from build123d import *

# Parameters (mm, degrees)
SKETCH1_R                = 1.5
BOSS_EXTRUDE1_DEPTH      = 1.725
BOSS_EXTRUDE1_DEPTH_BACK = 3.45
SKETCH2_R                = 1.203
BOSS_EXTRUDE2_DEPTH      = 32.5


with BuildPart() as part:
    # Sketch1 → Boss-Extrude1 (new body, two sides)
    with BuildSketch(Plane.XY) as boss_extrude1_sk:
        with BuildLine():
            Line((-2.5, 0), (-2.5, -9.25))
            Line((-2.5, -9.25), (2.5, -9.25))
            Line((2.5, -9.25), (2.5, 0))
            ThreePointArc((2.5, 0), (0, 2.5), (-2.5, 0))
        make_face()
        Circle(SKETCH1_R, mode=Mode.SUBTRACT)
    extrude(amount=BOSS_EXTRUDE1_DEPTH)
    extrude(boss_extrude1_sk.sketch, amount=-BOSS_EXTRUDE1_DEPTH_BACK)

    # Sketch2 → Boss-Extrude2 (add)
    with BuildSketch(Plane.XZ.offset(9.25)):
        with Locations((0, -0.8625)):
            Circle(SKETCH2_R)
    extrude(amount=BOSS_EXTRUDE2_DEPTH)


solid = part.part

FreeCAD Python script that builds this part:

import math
import FreeCAD as App
import Part
import Sketcher
Q = App.Units.Quantity

doc = App.newDocument("Part")
body = doc.addObject("PartDesign::Body", "Body")

# Sketch on XY plane
sketch1 = doc.addObject("Sketcher::SketchObject", "Sketch")
body.addObject(sketch1)
sketch1.AttachmentSupport = (doc.XY_Plane, [""])
sketch1.MapMode = "FlatFace"
sketch1.addGeometry(Part.LineSegment(App.Vector(-2.5, 0, 0), App.Vector(-2.5, -9.25, 0)), False)
sketch1.addGeometry(Part.LineSegment(App.Vector(-2.5, -9.25, 0), App.Vector(2.5, -9.25, 0)), False)
sketch1.addGeometry(Part.LineSegment(App.Vector(2.5, -9.25, 0), App.Vector(2.5, 0, 0)), False)
sketch1.addGeometry(Part.ArcOfCircle(Part.Circle(App.Vector(0, 0, 0), App.Vector(0, 0, 1), 2.5), math.radians(0), math.radians(180)), False)
sketch1.addGeometry(Part.Circle(App.Vector(0, 0, 0), App.Vector(0, 0, 1), 1.5), False)
sketch1.addConstraint(Sketcher.Constraint("Coincident", 0, 2, 1, 1))
sketch1.addConstraint(Sketcher.Constraint("Coincident", 1, 2, 2, 1))
sketch1.addConstraint(Sketcher.Constraint("Tangent", 2, 2, 3, 1))
sketch1.addConstraint(Sketcher.Constraint("Tangent", 3, 2, 0, 1))
sketch1.addConstraint(Sketcher.Constraint("Vertical", 0))
sketch1.addConstraint(Sketcher.Constraint("Horizontal", 1))
sketch1.addConstraint(Sketcher.Constraint("Vertical", 2))
sketch1.addConstraint(Sketcher.Constraint("Coincident", 3, 3, -1, 1))
sketch1.addConstraint(Sketcher.Constraint("Coincident", 4, 3, -1, 1))
sketch1.addConstraint(Sketcher.Constraint("Diameter", 4, Q("3 mm")))
sketch1.addConstraint(Sketcher.Constraint("Radius", 3, Q("2.5 mm")))
sketch1.addConstraint(Sketcher.Constraint("DistanceY", 0, 2, 0, 1, Q("9.25 mm")))
pad1 = doc.addObject("PartDesign::Pad", "Pad")
body.addObject(pad1)
pad1.Profile = sketch1
pad1.Type = "TwoLengths"
pad1.Length = 1.725
pad1.Length2 = 3.45

# Sketch on XZ plane
sketch2 = doc.addObject("Sketcher::SketchObject", "Sketch001")
body.addObject(sketch2)
sketch2.AttachmentSupport = (doc.XZ_Plane, [""])
sketch2.MapMode = "FlatFace"
sketch2.AttachmentOffset = App.Placement(App.Vector(0, 0, 9.25), App.Rotation())
sketch2.addGeometry(Part.Circle(App.Vector(0, -0.8625, 0), App.Vector(0, 0, 1), 1.203), False)
sketch2.addConstraint(Sketcher.Constraint("PointOnObject", 0, 3, -2))
sketch2.addConstraint(Sketcher.Constraint("Diameter", 0, Q("2.406 mm")))
sketch2.addConstraint(Sketcher.Constraint("DistanceY", 0, 3, -1, 1, Q("0.8625 mm")))
pad2 = doc.addObject("PartDesign::Pad", "Pad001")
body.addObject(pad2)
pad2.Profile = sketch2
pad2.Length = 32.5

doc.recompute()
